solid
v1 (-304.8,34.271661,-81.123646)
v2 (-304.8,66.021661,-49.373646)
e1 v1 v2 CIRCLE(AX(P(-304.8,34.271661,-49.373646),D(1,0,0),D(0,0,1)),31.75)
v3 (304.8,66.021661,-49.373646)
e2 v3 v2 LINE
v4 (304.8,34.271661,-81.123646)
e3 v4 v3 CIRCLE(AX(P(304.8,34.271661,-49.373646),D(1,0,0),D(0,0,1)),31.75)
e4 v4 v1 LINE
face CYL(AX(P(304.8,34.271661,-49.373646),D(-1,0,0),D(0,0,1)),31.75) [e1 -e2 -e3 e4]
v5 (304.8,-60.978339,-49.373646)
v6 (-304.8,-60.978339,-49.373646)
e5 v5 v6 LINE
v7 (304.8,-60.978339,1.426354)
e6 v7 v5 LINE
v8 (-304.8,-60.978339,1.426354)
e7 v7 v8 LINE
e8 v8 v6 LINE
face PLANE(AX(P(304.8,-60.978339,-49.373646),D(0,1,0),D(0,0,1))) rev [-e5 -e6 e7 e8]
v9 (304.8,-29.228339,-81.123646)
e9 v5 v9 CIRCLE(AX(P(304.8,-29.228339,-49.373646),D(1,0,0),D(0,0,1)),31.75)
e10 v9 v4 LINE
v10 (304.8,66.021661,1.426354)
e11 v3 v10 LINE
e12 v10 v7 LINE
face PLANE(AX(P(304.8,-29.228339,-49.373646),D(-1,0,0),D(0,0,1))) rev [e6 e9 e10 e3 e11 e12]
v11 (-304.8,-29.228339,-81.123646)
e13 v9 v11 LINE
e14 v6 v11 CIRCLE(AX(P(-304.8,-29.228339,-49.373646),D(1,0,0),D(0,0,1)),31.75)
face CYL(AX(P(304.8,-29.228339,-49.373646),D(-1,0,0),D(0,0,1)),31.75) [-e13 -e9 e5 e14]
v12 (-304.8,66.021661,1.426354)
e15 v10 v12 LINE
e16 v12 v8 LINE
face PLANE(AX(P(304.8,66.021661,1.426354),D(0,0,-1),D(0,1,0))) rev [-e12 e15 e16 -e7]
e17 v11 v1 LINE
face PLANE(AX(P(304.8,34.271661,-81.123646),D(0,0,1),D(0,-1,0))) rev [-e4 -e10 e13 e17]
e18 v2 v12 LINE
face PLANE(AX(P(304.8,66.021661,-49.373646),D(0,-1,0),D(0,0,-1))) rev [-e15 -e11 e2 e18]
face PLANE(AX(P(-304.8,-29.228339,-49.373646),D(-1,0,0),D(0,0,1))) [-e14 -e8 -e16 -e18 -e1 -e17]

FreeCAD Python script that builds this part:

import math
import FreeCAD as App
import Part
import Sketcher
from FreeCAD import Vector
Q = App.Units.Quantity

doc = App.newDocument("Part")
body = doc.addObject("PartDesign::Body", "Body")

sketch1 = doc.addObject("Sketcher::SketchObject", "Sketch")
body.addObject(sketch1)
sketch1.AttachmentSupport = (doc.YZ_Plane, [""])
sketch1.MapMode = "FlatFace"
sketch1.addGeometry([
    Part.LineSegment(Vector(66, -49, 0), Vector(66, 1, 0)),
    Part.LineSegment(Vector(66, 1, 0), Vector(-61, 1, 0)),
    Part.LineSegment(Vector(-61, 1, 0), Vector(-61, -49, 0)),
    Part.ArcOfCircle(Part.Circle(Vector(-29, -49, 0), Vector(0, 0, 1), 32), math.radians(180), math.radians(270)),
    Part.LineSegment(Vector(-29, -81, 0), Vector(34, -81, 0)),
    Part.ArcOfCircle(Part.Circle(Vector(34, -49, 0), Vector(0, 0, 1), 32), math.radians(-90), math.radians(0)),
], False)
sketch1.addConstraint([
    Sketcher.Constraint("Coincident", 0, 2, 1, 1),
    Sketcher.Constraint("Coincident", 1, 2, 2, 1),
    Sketcher.Constraint("Tangent", 2, 2, 3, 1),
    Sketcher.Constraint("Tangent", 3, 2, 4, 1),
    Sketcher.Constraint("Tangent", 4, 2, 5, 1),
    Sketcher.Constraint("Tangent", 5, 2, 0, 1),
    Sketcher.Constraint("Vertical", 0),
    Sketcher.Constraint("Horizontal", 1),
    Sketcher.Constraint("Vertical", 2),
    Sketcher.Constraint("Horizontal", 4),
    Sketcher.Constraint("Equal", 3, 5),
    Sketcher.Constraint("DistanceX", 1, 2, 1, 1, Q("5 in")),
    Sketcher.Constraint("DistanceY", 0, 1, 0, 2, Q("2 in")),
    Sketcher.Constraint("Radius", 3, Q("1.25 in")),
    Sketcher.Constraint("DistanceX", 3, 3, -1, 1, 29.228339),
    Sketcher.Constraint("DistanceY", 3, 3, -1, 1, 49.373646),
])
pad1 = doc.addObject("PartDesign::Pad", "Pad")
body.addObject(pad1)
pad1.Profile = sketch1
pad1.Length = Q("24 in")
pad1.Midplane = True

doc.recompute()
